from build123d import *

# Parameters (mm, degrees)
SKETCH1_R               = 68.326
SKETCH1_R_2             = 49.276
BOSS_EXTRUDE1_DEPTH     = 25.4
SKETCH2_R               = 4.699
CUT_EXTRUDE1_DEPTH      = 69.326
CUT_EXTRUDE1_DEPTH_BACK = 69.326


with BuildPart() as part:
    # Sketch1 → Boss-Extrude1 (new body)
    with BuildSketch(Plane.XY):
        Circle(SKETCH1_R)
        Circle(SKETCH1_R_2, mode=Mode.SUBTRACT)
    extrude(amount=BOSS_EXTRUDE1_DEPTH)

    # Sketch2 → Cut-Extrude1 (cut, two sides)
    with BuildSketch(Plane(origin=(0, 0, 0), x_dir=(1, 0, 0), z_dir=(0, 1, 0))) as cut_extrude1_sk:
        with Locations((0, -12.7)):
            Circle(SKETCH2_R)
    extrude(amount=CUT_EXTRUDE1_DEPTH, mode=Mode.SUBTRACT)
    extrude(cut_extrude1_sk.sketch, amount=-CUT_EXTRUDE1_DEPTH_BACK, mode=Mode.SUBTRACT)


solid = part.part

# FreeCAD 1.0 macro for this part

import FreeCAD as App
import Part
import Sketcher
from FreeCAD import Vector
Q = App.Units.Quantity

doc = App.newDocument("Part")
params = doc.addObject("Spreadsheet::Sheet", "Params")
for row, (alias, value) in enumerate([
    ("sketch1_diameter", "5.38 in"),
    ("sketch1_diameter2", "3.88 in"),
    ("pad1_length", "1 in"),
    ("sketch2_diameter", "0.37 in"),
], start=1):
    params.set(f"A{row}", alias)
    params.set(f"B{row}", "=" + value)
    params.setAlias(f"B{row}", alias)

body = doc.addObject("PartDesign::Body", "Body")

# Sketch on XY plane
sketch1 = body.newObject("Sketcher::SketchObject", "Sketch")
sketch1.AttachmentSupport = (doc.getObject("XY_Plane"), [""])
sketch1.MapMode = "FlatFace"
sketch1.addGeometry(Part.Circle(Vector(0, 0, 0), Vector(0, 0, 1), 68), False)
sketch1.addGeometry(Part.Circle(Vector(0, 0, 0), Vector(0, 0, 1), 49), False)
sketch1.addConstraint(Sketcher.Constraint("Coincident", 0, 3, -1, 1))
sketch1.addConstraint(Sketcher.Constraint("Coincident", 1, 3, -1, 1))
sketch1.addConstraint(Sketcher.Constraint("Diameter", 0, Q("5.38 in")))
sketch1.addConstraint(Sketcher.Constraint("Diameter", 1, Q("3.88 in")))
sketch1.setExpression("Constraints[2]", "Params.sketch1_diameter")
sketch1.setExpression("Constraints[3]", "Params.sketch1_diameter2")
pad1 = body.newObject("PartDesign::Pad", "Pad")
pad1.Profile = sketch1
pad1.setExpression("Length", "Params.pad1_length")

# Sketch on XZ plane
sketch2 = body.newObject("Sketcher::SketchObject", "Sketch001")
sketch2.AttachmentSupport = (doc.getObject("XZ_Plane"), [""])
sketch2.MapMode = "FlatFace"
sketch2.addGeometry(Part.Circle(Vector(0, 12.7, 0), Vector(0, 0, 1), 4.7), False)
sketch2.addConstraint(Sketcher.Constraint("PointOnObject", 0, 3, -2))
sketch2.addConstraint(Sketcher.Constraint("Diameter", 0, Q("0.37 in")))
sketch2.addConstraint(Sketcher.Constraint("DistanceY", -1, 1, 0, 3, Q("0.5 in")))
sketch2.setExpression("Constraints[1]", "Params.sketch2_diameter")
pocket1 = body.newObject("PartDesign::Pocket", "Pocket")
pocket1.Profile = sketch2
pocket1.Type = "ThroughAll"
pocket1.Midplane = True

doc.recompute()
